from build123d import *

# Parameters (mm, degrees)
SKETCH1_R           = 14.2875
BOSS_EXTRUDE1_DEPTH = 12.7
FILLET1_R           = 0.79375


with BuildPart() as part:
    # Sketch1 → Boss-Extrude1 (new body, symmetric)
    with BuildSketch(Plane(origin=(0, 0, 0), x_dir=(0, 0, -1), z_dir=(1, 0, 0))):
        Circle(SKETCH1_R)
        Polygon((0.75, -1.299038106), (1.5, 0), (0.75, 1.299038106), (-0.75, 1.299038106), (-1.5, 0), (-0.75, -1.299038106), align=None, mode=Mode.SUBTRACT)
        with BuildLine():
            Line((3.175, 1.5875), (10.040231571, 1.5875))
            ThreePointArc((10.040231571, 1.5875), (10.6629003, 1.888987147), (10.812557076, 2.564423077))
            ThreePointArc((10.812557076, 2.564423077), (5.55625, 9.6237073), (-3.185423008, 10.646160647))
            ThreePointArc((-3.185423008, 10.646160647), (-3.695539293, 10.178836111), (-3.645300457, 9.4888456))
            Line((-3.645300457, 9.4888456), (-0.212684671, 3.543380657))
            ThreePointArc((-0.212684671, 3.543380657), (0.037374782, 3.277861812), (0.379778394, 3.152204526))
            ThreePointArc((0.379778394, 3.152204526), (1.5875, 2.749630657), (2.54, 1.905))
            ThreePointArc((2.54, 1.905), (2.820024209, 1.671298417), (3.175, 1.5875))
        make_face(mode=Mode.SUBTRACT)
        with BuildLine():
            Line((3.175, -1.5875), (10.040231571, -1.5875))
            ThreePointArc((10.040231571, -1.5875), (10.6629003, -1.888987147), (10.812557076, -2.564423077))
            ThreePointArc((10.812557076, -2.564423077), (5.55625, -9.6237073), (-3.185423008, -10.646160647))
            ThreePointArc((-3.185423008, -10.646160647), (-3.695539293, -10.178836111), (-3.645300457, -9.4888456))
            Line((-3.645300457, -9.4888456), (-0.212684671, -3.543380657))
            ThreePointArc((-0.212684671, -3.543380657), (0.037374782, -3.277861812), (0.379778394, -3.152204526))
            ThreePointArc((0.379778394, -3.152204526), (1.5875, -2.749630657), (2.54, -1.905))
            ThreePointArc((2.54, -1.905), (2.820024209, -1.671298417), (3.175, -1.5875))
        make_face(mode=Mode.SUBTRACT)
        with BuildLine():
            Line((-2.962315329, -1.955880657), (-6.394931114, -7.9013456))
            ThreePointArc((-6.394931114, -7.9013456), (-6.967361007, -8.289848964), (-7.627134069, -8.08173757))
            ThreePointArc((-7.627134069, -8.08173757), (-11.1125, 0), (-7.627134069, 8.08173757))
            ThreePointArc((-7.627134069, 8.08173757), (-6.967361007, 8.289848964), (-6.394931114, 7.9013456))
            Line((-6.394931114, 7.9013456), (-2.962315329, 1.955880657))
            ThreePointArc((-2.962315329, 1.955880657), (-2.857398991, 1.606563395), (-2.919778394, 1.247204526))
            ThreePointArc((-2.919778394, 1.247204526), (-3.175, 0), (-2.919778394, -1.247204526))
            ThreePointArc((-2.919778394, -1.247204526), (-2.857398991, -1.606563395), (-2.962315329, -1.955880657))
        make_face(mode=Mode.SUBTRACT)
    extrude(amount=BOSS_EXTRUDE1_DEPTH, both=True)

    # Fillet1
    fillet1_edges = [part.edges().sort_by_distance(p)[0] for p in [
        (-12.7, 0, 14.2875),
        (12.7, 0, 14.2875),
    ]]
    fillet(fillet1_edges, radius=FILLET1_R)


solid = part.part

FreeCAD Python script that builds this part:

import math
import FreeCAD as App
import Part
import Sketcher
Q = App.Units.Quantity


def edges_at(feature, points):
    """Names of the edges that pass closest to the given points."""
    edges = feature.Shape.Edges
    near = lambda p: min(range(len(edges)), key=lambda i: edges[i].distToShape(Part.Vertex(*p))[0])
    return sorted({f"Edge{near(p) + 1}" for p in points})

doc = App.newDocument("Part")
body = doc.addObject("PartDesign::Body", "Body")

# Sketch on YZ plane
sketch1 = body.newObject("Sketcher::SketchObject", "Sketch")
sketch1.AttachmentSupport = (doc.getObject("YZ_Plane"), [""])
sketch1.MapMode = "FlatFace"
sketch1.addGeometry([
    Part.Circle(App.Vector(0, 0, 0), App.Vector(0, 0, 1), 14.2875),  # 0
    Part.ArcOfCircle(Part.Circle(App.Vector(-2.38125, -3.175, 0), App.Vector(0, 0, 1), 0.79375), math.radians(0), math.radians(53.130102)),  # 1
    Part.LineSegment(App.Vector(-1.5875, -3.175, 0), App.Vector(-1.5875, -10.040232, 0)),  # 2
    Part.ArcOfCircle(Part.Circle(App.Vector(-2.38125, -10.040232, 0), App.Vector(0, 0, 1), 0.79375), math.radians(-103.342364), math.radians(0)),  # 3
    Part.ArcOfCircle(Part.Circle(App.Vector(0, 0, 0), App.Vector(0, 0, 1), 11.1125), math.radians(163.342364), math.radians(256.657636)),  # 4
    Part.ArcOfCircle(Part.Circle(App.Vector(-9.885721, 2.957893, 0), App.Vector(0, 0, 1), 0.79375), math.radians(60), math.radians(163.342364)),  # 5
    Part.LineSegment(App.Vector(-9.488846, 3.6453, 0), App.Vector(-3.543381, 0.212685, 0)),  # 6
    Part.ArcOfCircle(Part.Circle(App.Vector(-3.940256, -0.474723, 0), App.Vector(0, 0, 1), 0.79375), math.radians(6.869897), math.radians(60)),  # 7
    Part.ArcOfCircle(Part.Circle(App.Vector(0, 0, 0), App.Vector(0, 0, 1), 3.175), math.radians(-173.130102), math.radians(-126.869898)),  # 8
    Part.ArcOfCircle(Part.Circle(App.Vector(-1.559006, 3.649723, 0), App.Vector(0, 0, 1), 0.79375), math.radians(-120), math.radians(-66.869898)),  # 9
    Part.LineSegment(App.Vector(-1.955881, 2.962315, 0), App.Vector(-7.901346, 6.394931, 0)),  # 10
    Part.ArcOfCircle(Part.Circle(App.Vector(-7.504471, 7.082339, 0), App.Vector(0, 0, 1), 0.79375), math.radians(136.657636), math.radians(240)),  # 11
    Part.ArcOfCircle(Part.Circle(App.Vector(0, 0, 0), App.Vector(0, 0, 1), 11.1125), math.radians(43.342364), math.radians(136.657636)),  # 12
    Part.ArcOfCircle(Part.Circle(App.Vector(7.504471, 7.082339, 0), App.Vector(0, 0, 1), 0.79375), math.radians(-60), math.radians(43.342364)),  # 13
    Part.LineSegment(App.Vector(7.901346, 6.394931, 0), App.Vector(1.955881, 2.962315, 0)),  # 14
    Part.ArcOfCircle(Part.Circle(App.Vector(1.559006, 3.649723, 0), App.Vector(0, 0, 1), 0.79375), math.radians(-113.130102), math.radians(-60)),  # 15
    Part.ArcOfCircle(Part.Circle(App.Vector(0, 0, 0), App.Vector(0, 0, 1), 3.175), math.radians(66.869898), math.radians(113.130102)),  # 16
    Part.LineSegment(App.Vector(0, -1.5, 0), App.Vector(-1.299038, -0.75, 0)),  # 17
    Part.LineSegment(App.Vector(-1.299038, -0.75, 0), App.Vector(-1.299038, 0.75, 0)),  # 18
    Part.LineSegment(App.Vector(-1.299038, 0.75, 0), App.Vector(0, 1.5, 0)),  # 19
    Part.LineSegment(App.Vector(0, 1.5, 0), App.Vector(1.299038, 0.75, 0)),  # 20
    Part.LineSegment(App.Vector(1.299038, 0.75, 0), App.Vector(1.299038, -0.75, 0)),  # 21
    Part.LineSegment(App.Vector(1.299038, -0.75, 0), App.Vector(0, -1.5, 0)),  # 22
    Part.LineSegment(App.Vector(1.5875, -10.040232, 0), App.Vector(1.5875, -3.175, 0)),  # 23
    Part.ArcOfCircle(Part.Circle(App.Vector(2.38125, -3.175, 0), App.Vector(0, 0, 1), 0.79375), math.radians(126.869898), math.radians(180)),  # 24
    Part.ArcOfCircle(Part.Circle(App.Vector(0, 0, 0), App.Vector(0, 0, 1), 3.175), math.radians(-53.130102), math.radians(-6.869898)),  # 25
    Part.ArcOfCircle(Part.Circle(App.Vector(3.940256, -0.474723, 0), App.Vector(0, 0, 1), 0.79375), math.radians(120), math.radians(173.130103)),  # 26
    Part.LineSegment(App.Vector(3.543381, 0.212685, 0), App.Vector(9.488846, 3.6453, 0)),  # 27
    Part.ArcOfCircle(Part.Circle(App.Vector(9.885721, 2.957893, 0), App.Vector(0, 0, 1), 0.79375), math.radians(16.657636), math.radians(120)),  # 28
    Part.ArcOfCircle(Part.Circle(App.Vector(0, 0, 0), App.Vector(0, 0, 1), 11.1125), math.radians(-76.657636), math.radians(16.657636)),  # 29
    Part.ArcOfCircle(Part.Circle(App.Vector(2.38125, -10.040232, 0), App.Vector(0, 0, 1), 0.79375), math.radians(180), math.radians(283.342364)),  # 30
], False)
sketch1.addConstraint([
    Sketcher.Constraint("Tangent", 1, 1, 2, 1),
    Sketcher.Constraint("Tangent", 2, 2, 3, 2),
    Sketcher.Constraint("Tangent", 3, 1, 4, 2),
    Sketcher.Constraint("Tangent", 4, 1, 5, 2),
    Sketcher.Constraint("Tangent", 5, 1, 6, 1),
    Sketcher.Constraint("Tangent", 6, 2, 7, 2),
    Sketcher.Constraint("Tangent", 7, 1, 8, 1),
    Sketcher.Constraint("Tangent", 8, 2, 1, 2),
    Sketcher.Constraint("Tangent", 9, 1, 10, 1),
    Sketcher.Constraint("Tangent", 10, 2, 11, 2),
    Sketcher.Constraint("Tangent", 11, 1, 12, 2),
    Sketcher.Constraint("Tangent", 12, 1, 13, 2),
    Sketcher.Constraint("Tangent", 13, 1, 14, 1),
    Sketcher.Constraint("Tangent", 14, 2, 15, 2),
    Sketcher.Constraint("Tangent", 15, 1, 16, 1),
    Sketcher.Constraint("Tangent", 16, 2, 9, 2),
    Sketcher.Constraint("Coincident", 17, 2, 18, 1),
    Sketcher.Constraint("Coincident", 18, 2, 19, 1),
    Sketcher.Constraint("Coincident", 19, 2, 20, 1),
    Sketcher.Constraint("Coincident", 20, 2, 21, 1),
    Sketcher.Constraint("Coincident", 21, 2, 22, 1),
    Sketcher.Constraint("Coincident", 22, 2, 17, 1),
    Sketcher.Constraint("Tangent", 23, 2, 24, 2),
    Sketcher.Constraint("Tangent", 24, 1, 25, 1),
    Sketcher.Constraint("Tangent", 25, 2, 26, 2),
    Sketcher.Constraint("Tangent", 26, 1, 27, 1),
    Sketcher.Constraint("Tangent", 27, 2, 28, 2),
    Sketcher.Constraint("Tangent", 28, 1, 29, 2),
    Sketcher.Constraint("Tangent", 29, 1, 30, 2),
    Sketcher.Constraint("Tangent", 30, 1, 23, 1),
    Sketcher.Constraint("Vertical", 2),
    Sketcher.Constraint("Vertical", 18),
    Sketcher.Constraint("Vertical", 21),
    Sketcher.Constraint("Vertical", 23),
    Sketcher.Constraint("Coincident", 0, 3, -1, 1),
    Sketcher.Constraint("Coincident", 4, 3, -1, 1),
    Sketcher.Constraint("Coincident", 8, 3, -1, 1),
    Sketcher.Constraint("Coincident", 12, 3, -1, 1),
    Sketcher.Constraint("Coincident", 16, 3, -1, 1),
    Sketcher.Constraint("Coincident", 25, 3, -1, 1),
    Sketcher.Constraint("Coincident", 29, 3, -1, 1),
    Sketcher.Constraint("Equal", 1, 3),
    Sketcher.Constraint("Equal", 3, 5),
    Sketcher.Constraint("Equal", 5, 7),
    Sketcher.Constraint("Equal", 7, 9),
    Sketcher.Constraint("Equal", 9, 11),
    Sketcher.Constraint("Equal", 4, 12),
    Sketcher.Constraint("Equal", 11, 13),
    Sketcher.Constraint("Equal", 13, 15),
    Sketcher.Constraint("Equal", 8, 16),
    Sketcher.Constraint("Equal", 15, 24),
    Sketcher.Constraint("Equal", 16, 25),
    Sketcher.Constraint("Equal", 24, 26),
    Sketcher.Constraint("Equal", 26, 28),
    Sketcher.Constraint("Equal", 12, 29),
    Sketcher.Constraint("Equal", 28, 30),
    Sketcher.Constraint("Symmetric", 17, 2, 20, 2, -1, 1),
    Sketcher.Constraint("Symmetric", 19, 2, 22, 2, -1, 1),
    Sketcher.Constraint("Symmetric", 10, 2, 13, 1, -2),
    Sketcher.Constraint("Symmetric", 6, 2, 26, 1, -2),
    Sketcher.Constraint("PointOnObject", 19, 2, -2),
    Sketcher.Constraint("Parallel", 6, 10),
    Sketcher.Constraint("Parallel", 10, 17),
    Sketcher.Constraint("Parallel", 14, 19),
    Sketcher.Constraint("Parallel", 19, 22),
    Sketcher.Constraint("Horizontal", 1, 3, 24, 3),
    Sketcher.Constraint("Equal", 6, 10),
    Sketcher.Constraint("Diameter", 0, Q("1.125 in")),
    Sketcher.Constraint("Angle", 6, Q("-30 deg")),
    Sketcher.Constraint("Radius", 1, Q("0.03125 in")),
    Sketcher.Constraint("Radius", 4, Q("0.4375 in")),
    Sketcher.Constraint("Radius", 8, Q("0.125 in")),
    Sketcher.Constraint("DistanceY", 8, 2, -1, 1, Q("0.1 in")),
    Sketcher.Constraint("DistanceX", 7, 3, 9, 3, Q("0.09375 in")),
    Sketcher.Constraint("DistanceY", 18, 1, 18, 2, 1.5),
    Sketcher.Constraint("Distance", 17, 1.5),
])
pad1 = body.newObject("PartDesign::Pad", "Pad")
pad1.Profile = sketch1
pad1.Length = Q("1 in")
pad1.Midplane = True
doc.recompute()

fillet = body.newObject("PartDesign::Fillet", "Fillet")
fillet.Base = (pad1, edges_at(pad1, [(-12.7, 0, 14.287), (12.7, 0, 14.287)]))
fillet.Radius = Q("0.03125 in")

doc.recompute()
